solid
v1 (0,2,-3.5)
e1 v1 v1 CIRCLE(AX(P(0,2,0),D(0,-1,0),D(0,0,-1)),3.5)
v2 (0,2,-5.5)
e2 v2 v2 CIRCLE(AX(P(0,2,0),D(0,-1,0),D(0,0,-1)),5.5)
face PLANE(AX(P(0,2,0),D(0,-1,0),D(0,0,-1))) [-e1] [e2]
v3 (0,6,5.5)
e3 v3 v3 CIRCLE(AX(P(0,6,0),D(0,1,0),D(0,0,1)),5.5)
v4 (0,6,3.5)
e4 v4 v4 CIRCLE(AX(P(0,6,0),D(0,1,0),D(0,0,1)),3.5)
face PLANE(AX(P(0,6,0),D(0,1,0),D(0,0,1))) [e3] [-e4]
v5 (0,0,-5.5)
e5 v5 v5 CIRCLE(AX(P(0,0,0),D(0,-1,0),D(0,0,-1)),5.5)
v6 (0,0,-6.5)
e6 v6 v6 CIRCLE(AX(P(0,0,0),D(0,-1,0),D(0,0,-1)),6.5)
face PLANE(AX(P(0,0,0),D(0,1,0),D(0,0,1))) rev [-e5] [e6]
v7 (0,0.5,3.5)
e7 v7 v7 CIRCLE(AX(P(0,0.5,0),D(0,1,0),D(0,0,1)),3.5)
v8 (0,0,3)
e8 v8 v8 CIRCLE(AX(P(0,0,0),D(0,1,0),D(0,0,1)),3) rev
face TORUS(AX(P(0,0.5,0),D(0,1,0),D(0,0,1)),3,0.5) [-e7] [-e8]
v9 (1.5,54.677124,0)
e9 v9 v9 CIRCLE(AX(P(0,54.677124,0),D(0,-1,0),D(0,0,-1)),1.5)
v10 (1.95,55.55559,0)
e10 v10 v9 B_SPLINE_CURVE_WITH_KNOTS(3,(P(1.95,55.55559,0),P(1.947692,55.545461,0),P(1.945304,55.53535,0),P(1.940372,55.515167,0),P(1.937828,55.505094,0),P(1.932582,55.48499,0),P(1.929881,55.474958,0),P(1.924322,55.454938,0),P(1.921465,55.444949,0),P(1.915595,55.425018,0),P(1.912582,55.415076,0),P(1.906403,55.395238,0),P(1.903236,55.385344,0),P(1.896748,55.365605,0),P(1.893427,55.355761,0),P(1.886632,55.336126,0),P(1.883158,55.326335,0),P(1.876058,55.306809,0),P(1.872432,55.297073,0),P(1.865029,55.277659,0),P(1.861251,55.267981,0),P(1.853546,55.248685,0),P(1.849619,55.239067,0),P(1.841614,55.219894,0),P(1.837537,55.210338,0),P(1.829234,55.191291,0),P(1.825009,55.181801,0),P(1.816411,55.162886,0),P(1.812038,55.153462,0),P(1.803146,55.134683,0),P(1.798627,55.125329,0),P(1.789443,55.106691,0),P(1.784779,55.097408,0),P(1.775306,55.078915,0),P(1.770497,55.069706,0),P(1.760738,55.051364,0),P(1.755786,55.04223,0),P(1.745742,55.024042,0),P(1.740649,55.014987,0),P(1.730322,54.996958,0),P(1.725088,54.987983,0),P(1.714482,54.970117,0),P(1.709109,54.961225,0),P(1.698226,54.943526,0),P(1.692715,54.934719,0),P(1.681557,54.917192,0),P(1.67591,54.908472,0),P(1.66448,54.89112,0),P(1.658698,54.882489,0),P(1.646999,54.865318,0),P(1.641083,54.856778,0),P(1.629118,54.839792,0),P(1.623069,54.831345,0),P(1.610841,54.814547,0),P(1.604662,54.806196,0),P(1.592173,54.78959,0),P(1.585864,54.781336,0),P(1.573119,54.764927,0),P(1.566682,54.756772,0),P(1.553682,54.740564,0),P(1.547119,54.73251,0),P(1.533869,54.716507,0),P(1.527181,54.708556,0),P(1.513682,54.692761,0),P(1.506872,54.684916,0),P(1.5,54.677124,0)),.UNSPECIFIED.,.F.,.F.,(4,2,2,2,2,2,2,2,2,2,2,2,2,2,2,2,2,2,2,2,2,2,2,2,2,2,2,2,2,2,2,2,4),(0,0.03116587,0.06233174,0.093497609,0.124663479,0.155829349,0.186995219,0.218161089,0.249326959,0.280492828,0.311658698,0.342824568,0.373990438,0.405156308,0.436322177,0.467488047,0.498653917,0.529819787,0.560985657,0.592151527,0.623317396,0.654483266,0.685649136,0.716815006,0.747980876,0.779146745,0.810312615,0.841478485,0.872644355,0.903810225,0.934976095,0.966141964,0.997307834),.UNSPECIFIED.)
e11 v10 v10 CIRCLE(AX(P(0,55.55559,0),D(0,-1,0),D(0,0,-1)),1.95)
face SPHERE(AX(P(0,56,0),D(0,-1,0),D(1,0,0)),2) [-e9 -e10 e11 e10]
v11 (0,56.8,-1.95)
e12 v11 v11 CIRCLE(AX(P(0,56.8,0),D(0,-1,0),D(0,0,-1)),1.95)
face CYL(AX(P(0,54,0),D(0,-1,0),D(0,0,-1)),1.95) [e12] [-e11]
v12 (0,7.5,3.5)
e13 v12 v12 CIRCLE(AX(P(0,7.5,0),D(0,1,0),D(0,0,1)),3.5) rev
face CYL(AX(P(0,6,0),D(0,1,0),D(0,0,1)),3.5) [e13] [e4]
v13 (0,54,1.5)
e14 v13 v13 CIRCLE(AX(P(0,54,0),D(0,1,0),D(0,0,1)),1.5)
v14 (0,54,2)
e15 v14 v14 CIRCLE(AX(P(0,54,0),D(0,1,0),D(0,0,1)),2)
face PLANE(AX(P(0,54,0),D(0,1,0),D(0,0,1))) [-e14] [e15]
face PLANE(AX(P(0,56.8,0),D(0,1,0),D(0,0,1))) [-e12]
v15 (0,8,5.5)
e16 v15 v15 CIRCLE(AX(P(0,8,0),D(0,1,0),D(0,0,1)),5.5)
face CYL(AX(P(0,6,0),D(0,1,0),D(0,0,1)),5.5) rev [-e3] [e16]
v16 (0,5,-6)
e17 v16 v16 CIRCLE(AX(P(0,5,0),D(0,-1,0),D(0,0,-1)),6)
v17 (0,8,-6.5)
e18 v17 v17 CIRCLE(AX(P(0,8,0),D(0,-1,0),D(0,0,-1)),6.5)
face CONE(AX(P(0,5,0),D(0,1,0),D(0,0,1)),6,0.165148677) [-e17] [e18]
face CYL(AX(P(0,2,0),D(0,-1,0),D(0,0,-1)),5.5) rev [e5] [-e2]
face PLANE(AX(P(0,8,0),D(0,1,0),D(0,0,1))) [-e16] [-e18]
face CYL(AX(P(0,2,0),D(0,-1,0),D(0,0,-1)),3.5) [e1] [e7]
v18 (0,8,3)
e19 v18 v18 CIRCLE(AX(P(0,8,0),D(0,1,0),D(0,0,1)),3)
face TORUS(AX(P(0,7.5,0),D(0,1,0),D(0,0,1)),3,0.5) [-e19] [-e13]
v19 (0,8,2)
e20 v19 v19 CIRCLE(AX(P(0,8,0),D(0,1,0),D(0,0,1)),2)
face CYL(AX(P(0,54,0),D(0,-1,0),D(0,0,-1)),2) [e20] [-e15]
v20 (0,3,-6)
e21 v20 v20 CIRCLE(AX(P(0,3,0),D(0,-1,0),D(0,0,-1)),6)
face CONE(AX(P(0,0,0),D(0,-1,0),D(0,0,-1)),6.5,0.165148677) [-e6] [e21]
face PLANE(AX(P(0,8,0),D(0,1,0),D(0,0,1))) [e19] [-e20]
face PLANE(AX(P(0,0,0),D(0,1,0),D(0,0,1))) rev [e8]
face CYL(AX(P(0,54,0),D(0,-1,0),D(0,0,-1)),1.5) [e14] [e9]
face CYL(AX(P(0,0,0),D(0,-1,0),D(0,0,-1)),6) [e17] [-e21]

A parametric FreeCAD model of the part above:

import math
import FreeCAD as App
import Part
import Sketcher
Q = App.Units.Quantity


def edges_at(feature, points):
    """Names of the edges that pass closest to the given points."""
    edges = feature.Shape.Edges
    near = lambda p: min(range(len(edges)), key=lambda i: edges[i].distToShape(Part.Vertex(*p))[0])
    return sorted({f"Edge{near(p) + 1}" for p in points})


def add_polygon(sketch, points):
    """Adds a closed chain of lines whose ends are joined by coincident constraints."""
    first, n = sketch.GeometryCount, len(points)
    for a, b in zip(points, points[1:] + points[:1]):
        sketch.addGeometry(Part.LineSegment(App.Vector(*a, 0), App.Vector(*b, 0)), False)
    for i in range(n):
        sketch.addConstraint(Sketcher.Constraint("Coincident", first + i, 2, first + (i + 1) % n, 1))

doc = App.newDocument("Part")
body = doc.addObject("PartDesign::Body", "Body")

sketch1 = body.newObject("Sketcher::SketchObject", "Sketch")
sketch1.AttachmentSupport = (doc.getObject("XZ_Plane"), [""])
sketch1.MapMode = "FlatFace"
sketch1.addGeometry(Part.Circle(App.Vector(0, 0, 0), App.Vector(0, 0, 1), 6), False)
sketch1.addConstraint(Sketcher.Constraint("Coincident", 0, 3, -1, 1))
sketch1.addConstraint(Sketcher.Constraint("Diameter", 0, Q("13 mm")))
pad1 = body.newObject("PartDesign::Pad", "Pad")
pad1.Profile = sketch1
pad1.Length = 8
pad1.Reversed = True

sketch2 = body.newObject("Sketcher::SketchObject", "Sketch001")
sketch2.AttachmentSupport = (doc.getObject("XZ_Plane"), [""])
sketch2.MapMode = "FlatFace"
sketch2.AttachmentOffset = App.Placement(App.Vector(0, 0, -8), App.Rotation())
sketch2.addGeometry(Part.Circle(App.Vector(0, 0, 0), App.Vector(0, 0, 1), 2), False)
sketch2.addConstraint(Sketcher.Constraint("Coincident", 0, 3, -1, 1))
sketch2.addConstraint(Sketcher.Constraint("Diameter", 0, Q("4 mm")))
pad2 = body.newObject("PartDesign::Pad", "Pad001")
pad2.Profile = sketch2
pad2.Length = 46
pad2.Reversed = True

sketch3 = body.newObject("Sketcher::SketchObject", "Sketch002")
sketch3.AttachmentSupport = (doc.getObject("XY_Plane"), [""])
sketch3.MapMode = "FlatFace"
sketch3.addGeometry(Part.LineSegment(App.Vector(0, 56.8, 0), App.Vector(0, 54, 0)), False)
sketch3.addGeometry(Part.LineSegment(App.Vector(0, 54, 0), App.Vector(1.5, 54, 0)), False)
sketch3.addGeometry(Part.LineSegment(App.Vector(1.5, 54, 0), App.Vector(1.5, 54.7, 0)), False)
sketch3.addGeometry(Part.ArcOfCircle(Part.Circle(App.Vector(0, 56, 0), App.Vector(0, 0, 1), 2), math.radians(-41), math.radians(-13)), False)
sketch3.addGeometry(Part.LineSegment(App.Vector(1.9, 55.6, 0), App.Vector(1.9, 56.8, 0)), False)
sketch3.addGeometry(Part.LineSegment(App.Vector(1.9, 56.8, 0), App.Vector(0, 56.8, 0)), False)
sketch3.addConstraint(Sketcher.Constraint("Coincident", 0, 2, 1, 1))
sketch3.addConstraint(Sketcher.Constraint("Coincident", 1, 2, 2, 1))
sketch3.addConstraint(Sketcher.Constraint("Coincident", 2, 2, 3, 1))
sketch3.addConstraint(Sketcher.Constraint("Coincident", 3, 2, 4, 1))
sketch3.addConstraint(Sketcher.Constraint("Coincident", 4, 2, 5, 1))
sketch3.addConstraint(Sketcher.Constraint("Coincident", 5, 2, 0, 1))
sketch3.addConstraint(Sketcher.Constraint("Vertical", 0))
sketch3.addConstraint(Sketcher.Constraint("Horizontal", 1))
sketch3.addConstraint(Sketcher.Constraint("Vertical", 2))
sketch3.addConstraint(Sketcher.Constraint("Vertical", 4))
sketch3.addConstraint(Sketcher.Constraint("Horizontal", 5))
sketch3.addConstraint(Sketcher.Constraint("PointOnObject", 3, 3, -2))
sketch3.addConstraint(Sketcher.Constraint("PointOnObject", 0, 2, -2))
sketch3.addConstraint(Sketcher.Constraint("Radius", 3, Q("2 mm")))
sketch3.addConstraint(Sketcher.Constraint("DistanceX", 1, 1, 1, 2, Q("1.5 mm")))
sketch3.addConstraint(Sketcher.Constraint("DistanceY", 0, 2, 0, 1, Q("2.8 mm")))
sketch3.addConstraint(Sketcher.Constraint("DistanceY", -1, 1, 3, 3, Q("56 mm")))
sketch3.addConstraint(Sketcher.Constraint("DistanceY", -1, 1, 0, 2, Q("54 mm")))
sketch3.addConstraint(Sketcher.Constraint("DistanceX", 5, 2, 5, 1, Q("1.95 mm")))
revolution = body.newObject("PartDesign::Revolution", "Revolution")
revolution.Profile = sketch3
revolution.ReferenceAxis = (sketch3, ["V_Axis"])
revolution.Angle = 360

sketch4 = body.newObject("Sketcher::SketchObject", "Sketch003")
sketch4.AttachmentSupport = (doc.getObject("XY_Plane"), [""])
sketch4.MapMode = "FlatFace"
add_polygon(sketch4, [(-6.5, 8), (-6.5, 0), (-6, 3), (-6, 5)])
sketch4.addConstraint(Sketcher.Constraint("Vertical", 0))
sketch4.addConstraint(Sketcher.Constraint("Vertical", 2))
sketch4.addConstraint(Sketcher.Constraint("PointOnObject", 0, 2, -1))
sketch4.addConstraint(Sketcher.Constraint("Equal", 1, 3))
sketch4.addConstraint(Sketcher.Constraint("DistanceY", 0, 2, 0, 1, Q("8 mm")))
sketch4.addConstraint(Sketcher.Constraint("DistanceY", 2, 1, 2, 2, Q("2 mm")))
sketch4.addConstraint(Sketcher.Constraint("DistanceX", 1, 2, -1, 1, Q("6 mm")))
sketch4.addConstraint(Sketcher.Constraint("DistanceX", 0, 2, -1, 1, Q("6.5 mm")))
groove = body.newObject("PartDesign::Groove", "Groove")
groove.Profile = sketch4
groove.ReferenceAxis = (sketch4, ["V_Axis"])
groove.Angle = 360

sketch5 = body.newObject("Sketcher::SketchObject", "Sketch004")
sketch5.AttachmentSupport = (doc.getObject("XZ_Plane"), [""])
sketch5.MapMode = "FlatFace"
sketch5.addGeometry(Part.Circle(App.Vector(0, 0, 0), App.Vector(0, 0, 1), 5.5), False)
sketch5.addGeometry(Part.Circle(App.Vector(0, 0, 0), App.Vector(0, 0, 1), 3.5), False)
sketch5.addConstraint(Sketcher.Constraint("Coincident", 0, 3, -1, 1))
sketch5.addConstraint(Sketcher.Constraint("Coincident", 1, 3, -1, 1))
sketch5.addConstraint(Sketcher.Constraint("Diameter", 0, Q("11 mm")))
sketch5.addConstraint(Sketcher.Constraint("Diameter", 1, Q("7 mm")))
pocket1 = body.newObject("PartDesign::Pocket", "Pocket")
pocket1.Profile = sketch5
pocket1.Length = 2

sketch6 = body.newObject("Sketcher::SketchObject", "Sketch005")
sketch6.AttachmentSupport = (doc.getObject("XZ_Plane"), [""])
sketch6.MapMode = "FlatFace"
sketch6.AttachmentOffset = App.Placement(App.Vector(0, 0, -6), App.Rotation())
sketch6.addGeometry(Part.Circle(App.Vector(0, 0, 0), App.Vector(0, 0, 1), 5.5), False)
sketch6.addGeometry(Part.Circle(App.Vector(0, 0, 0), App.Vector(0, 0, 1), 3.5), False)
sketch6.addConstraint(Sketcher.Constraint("Coincident", 0, 3, -1, 1))
sketch6.addConstraint(Sketcher.Constraint("Coincident", 1, 3, -1, 1))
sketch6.addConstraint(Sketcher.Constraint("Diameter", 0, Q("11 mm")))
sketch6.addConstraint(Sketcher.Constraint("Diameter", 1, Q("7 mm")))
pocket2 = body.newObject("PartDesign::Pocket", "Pocket001")
pocket2.Profile = sketch6
pocket2.Length = 2
doc.recompute()

fillet = body.newObject("PartDesign::Fillet", "Fillet")
fillet.Base = (pocket2, edges_at(pocket2, [(0, 0, 3.5), (0, 8, 3.5)]))
fillet.Radius = 0.5

doc.recompute()
